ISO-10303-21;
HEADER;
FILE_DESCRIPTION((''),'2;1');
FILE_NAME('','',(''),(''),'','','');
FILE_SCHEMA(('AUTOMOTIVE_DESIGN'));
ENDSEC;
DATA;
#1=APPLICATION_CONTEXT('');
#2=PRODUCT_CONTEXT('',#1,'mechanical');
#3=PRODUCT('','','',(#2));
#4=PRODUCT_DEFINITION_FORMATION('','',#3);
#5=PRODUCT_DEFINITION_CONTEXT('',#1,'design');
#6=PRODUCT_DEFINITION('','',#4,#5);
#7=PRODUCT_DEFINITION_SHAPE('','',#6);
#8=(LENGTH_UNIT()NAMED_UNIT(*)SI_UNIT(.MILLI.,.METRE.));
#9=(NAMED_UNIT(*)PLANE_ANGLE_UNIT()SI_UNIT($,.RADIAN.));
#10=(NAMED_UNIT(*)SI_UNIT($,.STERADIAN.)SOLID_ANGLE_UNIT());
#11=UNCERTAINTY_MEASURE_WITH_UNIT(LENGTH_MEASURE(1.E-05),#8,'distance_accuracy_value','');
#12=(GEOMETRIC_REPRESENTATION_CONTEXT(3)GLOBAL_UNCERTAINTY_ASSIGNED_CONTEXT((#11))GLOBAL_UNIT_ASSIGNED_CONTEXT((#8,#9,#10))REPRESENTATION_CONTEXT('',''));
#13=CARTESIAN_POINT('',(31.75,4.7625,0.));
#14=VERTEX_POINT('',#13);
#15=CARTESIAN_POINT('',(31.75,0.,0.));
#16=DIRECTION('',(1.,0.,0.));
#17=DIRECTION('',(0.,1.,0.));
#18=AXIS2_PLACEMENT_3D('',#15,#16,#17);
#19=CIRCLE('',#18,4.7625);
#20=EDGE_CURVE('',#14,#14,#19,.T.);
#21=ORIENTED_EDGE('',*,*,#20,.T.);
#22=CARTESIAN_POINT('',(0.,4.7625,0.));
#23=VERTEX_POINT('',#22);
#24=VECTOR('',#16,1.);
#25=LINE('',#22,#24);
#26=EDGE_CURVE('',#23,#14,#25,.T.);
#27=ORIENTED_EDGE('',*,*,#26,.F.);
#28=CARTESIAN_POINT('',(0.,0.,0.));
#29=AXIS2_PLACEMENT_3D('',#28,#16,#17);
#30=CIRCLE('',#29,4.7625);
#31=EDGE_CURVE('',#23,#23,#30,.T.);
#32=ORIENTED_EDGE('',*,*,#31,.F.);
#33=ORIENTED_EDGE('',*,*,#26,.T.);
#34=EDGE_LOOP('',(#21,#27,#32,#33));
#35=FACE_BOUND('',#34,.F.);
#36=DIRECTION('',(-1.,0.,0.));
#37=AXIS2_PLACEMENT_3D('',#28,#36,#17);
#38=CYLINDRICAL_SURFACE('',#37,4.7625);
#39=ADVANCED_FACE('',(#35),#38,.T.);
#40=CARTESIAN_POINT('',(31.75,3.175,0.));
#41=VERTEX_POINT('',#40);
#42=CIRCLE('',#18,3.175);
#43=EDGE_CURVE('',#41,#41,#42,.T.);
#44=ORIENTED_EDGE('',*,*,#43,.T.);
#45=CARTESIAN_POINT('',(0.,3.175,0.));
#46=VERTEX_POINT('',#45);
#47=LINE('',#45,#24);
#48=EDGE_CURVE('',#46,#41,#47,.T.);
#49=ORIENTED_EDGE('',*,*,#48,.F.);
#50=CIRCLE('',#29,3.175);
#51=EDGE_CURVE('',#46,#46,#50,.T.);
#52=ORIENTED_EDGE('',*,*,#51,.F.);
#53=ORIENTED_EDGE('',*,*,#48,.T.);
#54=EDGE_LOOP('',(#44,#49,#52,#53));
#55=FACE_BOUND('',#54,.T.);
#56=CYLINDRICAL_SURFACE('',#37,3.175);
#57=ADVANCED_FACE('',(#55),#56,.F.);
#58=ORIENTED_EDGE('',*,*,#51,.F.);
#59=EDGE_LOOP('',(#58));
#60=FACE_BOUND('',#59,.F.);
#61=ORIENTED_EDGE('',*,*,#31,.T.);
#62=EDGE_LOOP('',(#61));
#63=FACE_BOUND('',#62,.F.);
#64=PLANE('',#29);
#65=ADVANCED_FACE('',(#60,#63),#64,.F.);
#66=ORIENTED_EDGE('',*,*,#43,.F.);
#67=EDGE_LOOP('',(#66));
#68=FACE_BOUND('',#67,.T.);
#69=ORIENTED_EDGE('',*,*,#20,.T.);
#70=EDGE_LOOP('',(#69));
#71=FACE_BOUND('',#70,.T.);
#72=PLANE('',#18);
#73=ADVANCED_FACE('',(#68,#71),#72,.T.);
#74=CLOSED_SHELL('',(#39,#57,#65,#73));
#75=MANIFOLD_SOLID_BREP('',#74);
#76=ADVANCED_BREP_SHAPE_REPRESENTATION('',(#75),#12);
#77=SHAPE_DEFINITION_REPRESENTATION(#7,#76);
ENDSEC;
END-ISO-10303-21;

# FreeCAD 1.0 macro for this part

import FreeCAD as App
import Part
import Sketcher

V = App.Vector
Q = App.Units.Quantity

doc = App.newDocument("Part")
params = doc.addObject("Spreadsheet::Sheet", "Params")
for row, (alias, value) in enumerate([
    ("sketch1_diameter", "0.25 in"),
    ("sketch1_diameter2", "0.375 in"),
    ("pad1_length", "1.25 in"),
], start=1):
    params.set(f"A{row}", alias)
    params.set(f"B{row}", "=" + value)
    params.setAlias(f"B{row}", alias)

body = doc.addObject("PartDesign::Body", "Body")

sketch1 = body.newObject("Sketcher::SketchObject", "Sketch")
sketch1.AttachmentSupport = (doc.getObject("YZ_Plane"), [""])
sketch1.MapMode = "FlatFace"
sketch1.addGeometry([
    Part.Circle(V(0, 0, 0), V(0, 0, 1), 4.8),
    Part.Circle(V(0, 0, 0), V(0, 0, 1), 3.2),
], False)
sketch1.addConstraint([
    Sketcher.Constraint("Coincident", 0, 3, -1, 1),
    Sketcher.Constraint("Coincident", 1, 3, -1, 1),
    Sketcher.Constraint("Diameter", 1, Q("0.25 in")),
    Sketcher.Constraint("Diameter", 0, Q("0.375 in")),
])
sketch1.setExpression("Constraints[2]", "Params.sketch1_diameter")
sketch1.setExpression("Constraints[3]", "Params.sketch1_diameter2")
pad1 = body.newObject("PartDesign::Pad", "Pad")
pad1.Profile = sketch1
pad1.setExpression("Length", "Params.pad1_length")

doc.recompute()
